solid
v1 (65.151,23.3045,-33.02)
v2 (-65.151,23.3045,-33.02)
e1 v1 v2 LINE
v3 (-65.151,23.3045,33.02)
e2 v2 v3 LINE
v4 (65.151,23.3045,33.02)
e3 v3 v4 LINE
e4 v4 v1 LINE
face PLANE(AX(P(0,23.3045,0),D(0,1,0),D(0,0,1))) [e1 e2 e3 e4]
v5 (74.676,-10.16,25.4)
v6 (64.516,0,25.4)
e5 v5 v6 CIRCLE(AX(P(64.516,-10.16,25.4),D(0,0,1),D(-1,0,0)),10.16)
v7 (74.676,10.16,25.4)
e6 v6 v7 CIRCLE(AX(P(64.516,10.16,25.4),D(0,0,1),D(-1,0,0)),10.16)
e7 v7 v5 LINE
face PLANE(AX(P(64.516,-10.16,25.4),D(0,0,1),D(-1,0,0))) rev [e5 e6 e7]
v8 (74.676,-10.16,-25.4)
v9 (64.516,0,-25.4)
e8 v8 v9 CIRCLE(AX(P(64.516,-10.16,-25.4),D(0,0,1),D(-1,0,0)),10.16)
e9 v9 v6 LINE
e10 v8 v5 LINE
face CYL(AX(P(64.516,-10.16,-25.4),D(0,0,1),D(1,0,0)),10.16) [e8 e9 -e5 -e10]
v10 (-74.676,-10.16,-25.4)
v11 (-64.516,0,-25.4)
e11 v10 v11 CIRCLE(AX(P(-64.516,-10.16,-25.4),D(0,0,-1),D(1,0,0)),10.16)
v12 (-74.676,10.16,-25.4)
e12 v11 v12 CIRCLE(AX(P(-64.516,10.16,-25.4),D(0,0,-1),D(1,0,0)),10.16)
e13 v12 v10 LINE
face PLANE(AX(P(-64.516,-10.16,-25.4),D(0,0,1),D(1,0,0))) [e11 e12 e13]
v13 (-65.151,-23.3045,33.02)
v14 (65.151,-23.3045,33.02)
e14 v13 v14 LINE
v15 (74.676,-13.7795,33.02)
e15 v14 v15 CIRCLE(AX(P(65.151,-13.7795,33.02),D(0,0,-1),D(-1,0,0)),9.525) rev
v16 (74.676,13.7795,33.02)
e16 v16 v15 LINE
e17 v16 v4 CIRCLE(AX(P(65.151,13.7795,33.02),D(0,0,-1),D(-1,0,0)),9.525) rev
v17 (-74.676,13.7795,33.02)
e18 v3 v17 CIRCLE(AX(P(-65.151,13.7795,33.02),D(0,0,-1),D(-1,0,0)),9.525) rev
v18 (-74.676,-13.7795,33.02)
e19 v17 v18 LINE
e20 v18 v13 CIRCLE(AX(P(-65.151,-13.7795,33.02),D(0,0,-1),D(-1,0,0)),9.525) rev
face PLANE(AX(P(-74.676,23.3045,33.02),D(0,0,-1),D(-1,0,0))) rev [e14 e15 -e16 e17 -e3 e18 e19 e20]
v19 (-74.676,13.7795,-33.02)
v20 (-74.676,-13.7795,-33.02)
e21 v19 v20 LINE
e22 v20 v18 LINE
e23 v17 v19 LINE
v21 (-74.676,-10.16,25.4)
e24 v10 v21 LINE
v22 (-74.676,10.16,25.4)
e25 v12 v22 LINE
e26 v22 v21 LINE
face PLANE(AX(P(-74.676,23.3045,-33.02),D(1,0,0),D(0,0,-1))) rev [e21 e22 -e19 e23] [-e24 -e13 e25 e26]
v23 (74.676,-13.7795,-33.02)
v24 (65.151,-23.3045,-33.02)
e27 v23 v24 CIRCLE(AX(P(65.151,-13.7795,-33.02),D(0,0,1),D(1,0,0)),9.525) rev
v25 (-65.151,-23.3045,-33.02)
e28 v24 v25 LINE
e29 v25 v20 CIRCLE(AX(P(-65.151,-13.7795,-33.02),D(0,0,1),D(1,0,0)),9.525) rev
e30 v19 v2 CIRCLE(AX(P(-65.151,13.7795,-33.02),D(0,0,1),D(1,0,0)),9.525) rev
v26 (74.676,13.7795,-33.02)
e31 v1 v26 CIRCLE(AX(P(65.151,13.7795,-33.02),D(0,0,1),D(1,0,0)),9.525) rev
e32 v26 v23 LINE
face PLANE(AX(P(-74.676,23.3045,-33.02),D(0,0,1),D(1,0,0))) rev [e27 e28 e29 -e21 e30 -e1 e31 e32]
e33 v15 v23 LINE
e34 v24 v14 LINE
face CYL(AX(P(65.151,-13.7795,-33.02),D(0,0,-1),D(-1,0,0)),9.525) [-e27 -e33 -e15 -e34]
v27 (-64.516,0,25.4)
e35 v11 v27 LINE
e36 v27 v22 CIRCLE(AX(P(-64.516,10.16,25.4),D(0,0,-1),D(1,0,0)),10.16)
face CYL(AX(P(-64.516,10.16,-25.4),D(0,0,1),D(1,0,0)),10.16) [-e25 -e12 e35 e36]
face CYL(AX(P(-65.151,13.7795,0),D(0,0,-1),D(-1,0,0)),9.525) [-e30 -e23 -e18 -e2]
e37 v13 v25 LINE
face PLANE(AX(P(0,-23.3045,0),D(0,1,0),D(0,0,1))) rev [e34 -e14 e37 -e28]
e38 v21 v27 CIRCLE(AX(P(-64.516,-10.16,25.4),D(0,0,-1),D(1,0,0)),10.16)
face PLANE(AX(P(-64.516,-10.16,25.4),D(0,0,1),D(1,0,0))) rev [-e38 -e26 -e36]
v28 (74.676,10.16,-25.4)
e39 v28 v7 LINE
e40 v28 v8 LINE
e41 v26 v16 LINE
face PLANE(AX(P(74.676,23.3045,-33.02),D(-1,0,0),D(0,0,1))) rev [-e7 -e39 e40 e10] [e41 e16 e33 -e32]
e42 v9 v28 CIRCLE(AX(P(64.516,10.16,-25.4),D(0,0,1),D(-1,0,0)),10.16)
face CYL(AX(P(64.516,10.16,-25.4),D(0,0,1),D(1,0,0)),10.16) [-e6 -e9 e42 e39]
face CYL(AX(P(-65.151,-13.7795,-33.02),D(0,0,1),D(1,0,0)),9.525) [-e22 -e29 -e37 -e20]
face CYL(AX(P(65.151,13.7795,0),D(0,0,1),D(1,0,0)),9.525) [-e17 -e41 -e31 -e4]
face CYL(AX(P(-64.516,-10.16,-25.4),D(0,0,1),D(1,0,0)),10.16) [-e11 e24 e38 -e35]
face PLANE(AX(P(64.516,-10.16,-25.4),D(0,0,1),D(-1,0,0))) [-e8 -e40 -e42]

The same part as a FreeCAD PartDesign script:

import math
import FreeCAD as App
import Part
import Sketcher
Q = App.Units.Quantity


def edges_at(feature, points):
    """Names of the edges that pass closest to the given points."""
    edges = feature.Shape.Edges
    near = lambda p: min(range(len(edges)), key=lambda i: edges[i].distToShape(Part.Vertex(*p))[0])
    return sorted({f"Edge{near(p) + 1}" for p in points})

doc = App.newDocument("Part")
body = doc.addObject("PartDesign::Body", "Body")

# Sketch on XZ plane
sketch1 = doc.addObject("Sketcher::SketchObject", "Sketch")
body.addObject(sketch1)
sketch1.AttachmentSupport = (doc.XZ_Plane, [""])
sketch1.MapMode = "FlatFace"
sketch1.addGeometry(Part.LineSegment(App.Vector(-75, -33, 0), App.Vector(-75, 33, 0)), False)
sketch1.addGeometry(Part.LineSegment(App.Vector(-75, 33, 0), App.Vector(75, 33, 0)), False)
sketch1.addGeometry(Part.LineSegment(App.Vector(75, 33, 0), App.Vector(75, -33, 0)), False)
sketch1.addGeometry(Part.LineSegment(App.Vector(75, -33, 0), App.Vector(-75, -33, 0)), False)
sketch1.addConstraint(Sketcher.Constraint("Coincident", 0, 2, 1, 1))
sketch1.addConstraint(Sketcher.Constraint("Coincident", 1, 2, 2, 1))
sketch1.addConstraint(Sketcher.Constraint("Coincident", 2, 2, 3, 1))
sketch1.addConstraint(Sketcher.Constraint("Coincident", 3, 2, 0, 1))
sketch1.addConstraint(Sketcher.Constraint("Vertical", 0))
sketch1.addConstraint(Sketcher.Constraint("Horizontal", 1))
sketch1.addConstraint(Sketcher.Constraint("Vertical", 2))
sketch1.addConstraint(Sketcher.Constraint("Horizontal", 3))
sketch1.addConstraint(Sketcher.Constraint("Symmetric", 0, 2, 2, 2, -1, 1))
sketch1.addConstraint(Sketcher.Constraint("DistanceY", 0, 1, 0, 2, Q("2.6 in")))
sketch1.addConstraint(Sketcher.Constraint("DistanceX", 1, 1, 1, 2, Q("5.88 in")))
pad1 = doc.addObject("PartDesign::Pad", "Pad")
body.addObject(pad1)
pad1.Profile = sketch1
pad1.Length = Q("1.835 in")
pad1.Midplane = True
doc.recompute()

fillet = doc.addObject("PartDesign::Fillet", "Fillet")
body.addObject(fillet)
fillet.Base = (pad1, edges_at(pad1, [
    (74.676, 23.305, 0),
    (-74.676, 23.305, 0),
    (74.676, -23.305, 0),
    (-74.676, -23.305, 0),
]))
fillet.Radius = Q("0.375 in")

# Sketch on XY plane
sketch2 = doc.addObject("Sketcher::SketchObject", "Sketch001")
body.addObject(sketch2)
sketch2.AttachmentSupport = (doc.XY_Plane, [""])
sketch2.MapMode = "FlatFace"
sketch2.addGeometry(Part.LineSegment(App.Vector(-75, 10, 0), App.Vector(-75, -10, 0)), False)
sketch2.addGeometry(Part.ArcOfCircle(Part.Circle(App.Vector(-65, -10, 0), App.Vector(0, 0, 1), 10), math.radians(90), math.radians(180)), False)
sketch2.addGeometry(Part.ArcOfCircle(Part.Circle(App.Vector(-65, 10, 0), App.Vector(0, 0, 1), 10), math.radians(180), math.radians(270)), False)
sketch2.addConstraint(Sketcher.Constraint("Tangent", 0, 2, 1, 2))
sketch2.addConstraint(Sketcher.Constraint("Tangent", 1, 1, 2, 2))
sketch2.addConstraint(Sketcher.Constraint("Tangent", 2, 1, 0, 1))
sketch2.addConstraint(Sketcher.Constraint("Vertical", 0))
sketch2.addConstraint(Sketcher.Constraint("Equal", 1, 2))
sketch2.addConstraint(Sketcher.Constraint("PointOnObject", 1, 1, -1))
sketch2.addConstraint(Sketcher.Constraint("Radius", 1, Q("0.4 in")))
sketch2.addConstraint(Sketcher.Constraint("DistanceX", 1, 3, -1, 1, Q("2.54 in")))
pocket1 = doc.addObject("PartDesign::Pocket", "Pocket")
body.addObject(pocket1)
pocket1.Profile = sketch2
pocket1.Length = Q("2 in")
pocket1.Midplane = True
doc.recompute()

mirrored = doc.addObject("PartDesign::Mirrored", "Mirrored")
body.addObject(mirrored)
mirrored.Originals = [pocket1]
mirrored.MirrorPlane = (doc.YZ_Plane, [""])
body.Tip = mirrored

doc.recompute()
